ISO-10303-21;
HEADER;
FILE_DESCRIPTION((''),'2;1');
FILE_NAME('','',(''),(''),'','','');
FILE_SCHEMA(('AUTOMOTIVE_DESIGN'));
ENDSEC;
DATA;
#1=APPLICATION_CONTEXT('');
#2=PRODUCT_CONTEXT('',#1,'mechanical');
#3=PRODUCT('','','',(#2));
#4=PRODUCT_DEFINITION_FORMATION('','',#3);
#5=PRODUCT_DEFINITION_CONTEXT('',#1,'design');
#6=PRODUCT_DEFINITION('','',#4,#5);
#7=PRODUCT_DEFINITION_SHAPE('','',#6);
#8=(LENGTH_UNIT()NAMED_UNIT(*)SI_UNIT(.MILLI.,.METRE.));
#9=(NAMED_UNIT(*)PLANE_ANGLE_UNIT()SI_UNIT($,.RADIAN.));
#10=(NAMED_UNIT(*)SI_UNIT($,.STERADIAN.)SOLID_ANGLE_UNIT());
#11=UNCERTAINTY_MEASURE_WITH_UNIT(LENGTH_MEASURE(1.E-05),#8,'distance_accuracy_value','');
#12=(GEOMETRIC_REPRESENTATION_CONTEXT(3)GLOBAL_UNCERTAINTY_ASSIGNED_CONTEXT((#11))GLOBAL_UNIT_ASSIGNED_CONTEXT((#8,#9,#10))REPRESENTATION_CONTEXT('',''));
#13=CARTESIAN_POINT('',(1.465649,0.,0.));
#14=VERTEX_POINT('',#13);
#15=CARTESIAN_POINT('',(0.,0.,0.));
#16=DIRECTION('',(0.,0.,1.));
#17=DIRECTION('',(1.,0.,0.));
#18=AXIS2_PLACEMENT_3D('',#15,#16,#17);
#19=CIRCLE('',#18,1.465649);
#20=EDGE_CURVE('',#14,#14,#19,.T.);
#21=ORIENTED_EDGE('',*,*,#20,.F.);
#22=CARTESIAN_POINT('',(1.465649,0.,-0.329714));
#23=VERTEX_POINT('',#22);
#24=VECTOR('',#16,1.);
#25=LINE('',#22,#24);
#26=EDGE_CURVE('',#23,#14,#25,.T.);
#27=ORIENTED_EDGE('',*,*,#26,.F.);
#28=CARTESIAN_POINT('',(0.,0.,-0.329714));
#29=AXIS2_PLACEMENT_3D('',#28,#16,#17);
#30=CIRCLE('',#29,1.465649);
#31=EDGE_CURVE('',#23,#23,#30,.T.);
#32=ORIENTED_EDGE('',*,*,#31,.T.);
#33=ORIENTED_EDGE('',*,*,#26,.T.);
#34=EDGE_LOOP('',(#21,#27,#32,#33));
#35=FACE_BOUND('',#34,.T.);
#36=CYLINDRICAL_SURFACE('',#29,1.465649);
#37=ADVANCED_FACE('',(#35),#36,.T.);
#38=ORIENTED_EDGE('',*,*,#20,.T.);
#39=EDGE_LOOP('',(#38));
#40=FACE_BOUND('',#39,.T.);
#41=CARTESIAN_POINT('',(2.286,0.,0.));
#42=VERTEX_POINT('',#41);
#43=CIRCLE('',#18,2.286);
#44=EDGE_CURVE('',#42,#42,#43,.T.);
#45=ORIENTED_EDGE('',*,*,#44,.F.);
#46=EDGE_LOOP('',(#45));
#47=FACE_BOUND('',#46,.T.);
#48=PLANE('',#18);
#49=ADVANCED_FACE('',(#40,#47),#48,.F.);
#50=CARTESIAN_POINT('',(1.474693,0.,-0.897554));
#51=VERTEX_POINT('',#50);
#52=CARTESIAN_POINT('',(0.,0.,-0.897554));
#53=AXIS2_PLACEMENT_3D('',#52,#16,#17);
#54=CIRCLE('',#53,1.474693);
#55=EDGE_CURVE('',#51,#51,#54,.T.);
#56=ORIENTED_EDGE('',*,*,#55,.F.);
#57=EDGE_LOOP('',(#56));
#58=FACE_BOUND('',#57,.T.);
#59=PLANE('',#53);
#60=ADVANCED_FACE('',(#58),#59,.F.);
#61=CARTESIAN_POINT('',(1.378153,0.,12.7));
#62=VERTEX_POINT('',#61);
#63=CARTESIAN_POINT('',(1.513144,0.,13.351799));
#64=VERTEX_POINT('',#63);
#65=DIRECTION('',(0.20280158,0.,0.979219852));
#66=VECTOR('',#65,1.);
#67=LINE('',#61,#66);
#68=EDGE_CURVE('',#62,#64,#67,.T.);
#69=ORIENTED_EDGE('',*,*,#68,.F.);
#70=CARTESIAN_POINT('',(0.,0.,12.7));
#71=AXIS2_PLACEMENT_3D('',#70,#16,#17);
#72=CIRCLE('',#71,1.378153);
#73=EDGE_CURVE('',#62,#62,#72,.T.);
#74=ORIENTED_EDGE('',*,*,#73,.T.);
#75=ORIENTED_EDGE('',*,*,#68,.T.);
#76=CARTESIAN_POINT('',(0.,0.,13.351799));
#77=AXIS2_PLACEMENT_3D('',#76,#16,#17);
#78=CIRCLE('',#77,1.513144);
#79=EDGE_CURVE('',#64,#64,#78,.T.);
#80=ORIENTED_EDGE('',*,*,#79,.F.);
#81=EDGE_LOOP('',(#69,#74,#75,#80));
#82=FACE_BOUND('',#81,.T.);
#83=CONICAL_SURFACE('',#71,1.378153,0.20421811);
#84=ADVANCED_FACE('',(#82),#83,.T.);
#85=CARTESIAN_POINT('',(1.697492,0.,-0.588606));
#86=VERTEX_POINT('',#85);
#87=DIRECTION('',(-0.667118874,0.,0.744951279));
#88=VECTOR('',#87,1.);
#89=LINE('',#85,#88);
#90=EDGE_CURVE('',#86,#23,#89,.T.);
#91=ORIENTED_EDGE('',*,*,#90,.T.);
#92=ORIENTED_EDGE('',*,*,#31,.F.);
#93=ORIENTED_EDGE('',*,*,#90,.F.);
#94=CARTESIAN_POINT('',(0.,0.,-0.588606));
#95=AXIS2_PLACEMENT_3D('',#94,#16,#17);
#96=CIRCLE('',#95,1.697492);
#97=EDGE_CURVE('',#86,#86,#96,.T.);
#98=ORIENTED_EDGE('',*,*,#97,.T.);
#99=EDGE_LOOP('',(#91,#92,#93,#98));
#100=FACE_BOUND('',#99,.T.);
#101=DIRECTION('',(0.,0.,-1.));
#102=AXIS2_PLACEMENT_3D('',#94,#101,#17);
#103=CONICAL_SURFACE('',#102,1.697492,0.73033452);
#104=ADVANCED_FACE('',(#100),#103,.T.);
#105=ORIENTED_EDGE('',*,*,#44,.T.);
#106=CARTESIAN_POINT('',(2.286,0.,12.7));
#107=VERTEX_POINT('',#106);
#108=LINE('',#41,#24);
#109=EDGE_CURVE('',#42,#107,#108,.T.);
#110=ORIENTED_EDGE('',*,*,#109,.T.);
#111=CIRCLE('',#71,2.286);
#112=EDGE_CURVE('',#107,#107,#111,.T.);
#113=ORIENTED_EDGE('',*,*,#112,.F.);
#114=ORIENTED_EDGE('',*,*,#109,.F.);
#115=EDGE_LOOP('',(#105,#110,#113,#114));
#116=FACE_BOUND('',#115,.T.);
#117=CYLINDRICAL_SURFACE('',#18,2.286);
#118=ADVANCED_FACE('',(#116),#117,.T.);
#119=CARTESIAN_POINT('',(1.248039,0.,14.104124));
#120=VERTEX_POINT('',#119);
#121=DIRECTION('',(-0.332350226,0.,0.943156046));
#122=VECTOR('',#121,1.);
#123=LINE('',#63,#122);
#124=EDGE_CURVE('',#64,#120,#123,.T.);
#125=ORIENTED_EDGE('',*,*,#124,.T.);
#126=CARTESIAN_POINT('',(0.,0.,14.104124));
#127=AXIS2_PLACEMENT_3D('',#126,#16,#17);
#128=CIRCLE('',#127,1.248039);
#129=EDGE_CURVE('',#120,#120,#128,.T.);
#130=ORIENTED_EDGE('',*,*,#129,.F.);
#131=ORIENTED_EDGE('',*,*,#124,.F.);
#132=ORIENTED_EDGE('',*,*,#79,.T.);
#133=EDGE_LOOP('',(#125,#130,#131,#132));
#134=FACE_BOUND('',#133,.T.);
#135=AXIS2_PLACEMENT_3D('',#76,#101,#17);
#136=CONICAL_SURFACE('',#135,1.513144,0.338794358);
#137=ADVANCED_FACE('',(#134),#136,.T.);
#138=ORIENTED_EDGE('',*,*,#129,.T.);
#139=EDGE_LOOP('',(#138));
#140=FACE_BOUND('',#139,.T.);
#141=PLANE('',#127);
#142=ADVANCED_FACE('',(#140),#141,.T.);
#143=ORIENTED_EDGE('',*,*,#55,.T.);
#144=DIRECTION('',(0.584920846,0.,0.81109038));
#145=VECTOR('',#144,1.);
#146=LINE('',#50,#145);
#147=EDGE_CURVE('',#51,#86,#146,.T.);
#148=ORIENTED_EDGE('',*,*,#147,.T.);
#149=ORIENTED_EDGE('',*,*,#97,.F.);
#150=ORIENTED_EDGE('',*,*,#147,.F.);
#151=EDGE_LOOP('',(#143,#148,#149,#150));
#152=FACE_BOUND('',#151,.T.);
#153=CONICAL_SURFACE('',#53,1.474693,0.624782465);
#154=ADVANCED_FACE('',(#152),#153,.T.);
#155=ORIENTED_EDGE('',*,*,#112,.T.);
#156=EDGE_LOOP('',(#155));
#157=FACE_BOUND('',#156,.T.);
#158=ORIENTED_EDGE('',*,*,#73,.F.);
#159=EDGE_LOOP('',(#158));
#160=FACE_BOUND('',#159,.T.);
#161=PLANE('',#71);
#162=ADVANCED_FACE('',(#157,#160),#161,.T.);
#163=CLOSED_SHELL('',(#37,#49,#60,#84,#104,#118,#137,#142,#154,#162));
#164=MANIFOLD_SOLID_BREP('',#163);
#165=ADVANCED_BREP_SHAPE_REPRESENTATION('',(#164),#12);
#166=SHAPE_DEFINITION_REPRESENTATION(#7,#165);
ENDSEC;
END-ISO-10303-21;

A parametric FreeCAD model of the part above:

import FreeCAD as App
import Part
import Sketcher

V = App.Vector
Q = App.Units.Quantity


def add_polygon(sketch, points):
    """Adds a closed chain of lines whose ends are joined by coincident constraints."""
    first, n = sketch.GeometryCount, len(points)
    for a, b in zip(points, points[1:] + points[:1]):
        sketch.addGeometry(Part.LineSegment(App.Vector(*a, 0), App.Vector(*b, 0)), False)
    for i in range(n):
        sketch.addConstraint(Sketcher.Constraint("Coincident", first + i, 2, first + (i + 1) % n, 1))

doc = App.newDocument("Part")
params = doc.addObject("Spreadsheet::Sheet", "Params")
for row, (alias, value) in enumerate([
    ("sketch1_height", "0.5 in"),
    ("revolution_angle", "360 deg"),
], start=1):
    params.set(f"A{row}", alias)
    params.set(f"B{row}", "=" + value)
    params.setAlias(f"B{row}", alias)

body = doc.addObject("PartDesign::Body", "Body")

sketch1 = body.newObject("Sketcher::SketchObject", "Sketch")
sketch1.AttachmentSupport = (doc.getObject("XZ_Plane"), [""])
sketch1.MapMode = "FlatFace"
add_polygon(sketch1, [(0, 14.1), (0, -0.9), (1.47, -0.9), (1.7, -0.59), (1.47, -0.33), (1.47, 0), (2.29, 0), (2.29, 12.7), (1.38, 12.7), (1.51, 13.35), (1.25, 14.1)])
sketch1.addConstraint([
    Sketcher.Constraint("Vertical", 0),
    Sketcher.Constraint("Horizontal", 1),
    Sketcher.Constraint("Vertical", 4),
    Sketcher.Constraint("Horizontal", 5),
    Sketcher.Constraint("Vertical", 6),
    Sketcher.Constraint("Horizontal", 7),
    Sketcher.Constraint("Horizontal", 10),
    Sketcher.Constraint("PointOnObject", 0, 2, -2),
    Sketcher.Constraint("PointOnObject", 4, 2, -1),
    Sketcher.Constraint("DistanceY", 6, 1, 6, 2, Q("0.5 in")),
    Sketcher.Constraint("DistanceX", -1, 1, 5, 2, Q("0.09 in")),
    Sketcher.Constraint("DistanceX", 5, 1, 5, 2, 0.820351),
    Sketcher.Constraint("DistanceX", 10, 2, 10, 1, 1.248039),
    Sketcher.Constraint("DistanceY", -1, 1, 8, 2, 13.351799),
    Sketcher.Constraint("DistanceX", 1, 2, 2, 2, 0.222799),
    Sketcher.Constraint("Distance", 3, 0.347529),
    Sketcher.Constraint("Distance", 8, 0.665631),
    Sketcher.Constraint("DistanceX", 1, 1, 1, 2, 1.474693),
    Sketcher.Constraint("DistanceX", 7, 2, 7, 1, 0.907847),
    Sketcher.Constraint("DistanceY", 0, 2, 0, 1, 15.001678),
    Sketcher.Constraint("DistanceY", 4, 1, 4, 2, 0.329714),
    Sketcher.Constraint("DistanceY", 1, 2, 3, 2, 0.56784),
])
sketch1.setExpression("Constraints[20]", "Params.sketch1_height")
revolution = body.newObject("PartDesign::Revolution", "Revolution")
revolution.Profile = sketch1
revolution.ReferenceAxis = (sketch1, ["V_Axis"])
revolution.setExpression("Angle", "Params.revolution_angle")

doc.recompute()
